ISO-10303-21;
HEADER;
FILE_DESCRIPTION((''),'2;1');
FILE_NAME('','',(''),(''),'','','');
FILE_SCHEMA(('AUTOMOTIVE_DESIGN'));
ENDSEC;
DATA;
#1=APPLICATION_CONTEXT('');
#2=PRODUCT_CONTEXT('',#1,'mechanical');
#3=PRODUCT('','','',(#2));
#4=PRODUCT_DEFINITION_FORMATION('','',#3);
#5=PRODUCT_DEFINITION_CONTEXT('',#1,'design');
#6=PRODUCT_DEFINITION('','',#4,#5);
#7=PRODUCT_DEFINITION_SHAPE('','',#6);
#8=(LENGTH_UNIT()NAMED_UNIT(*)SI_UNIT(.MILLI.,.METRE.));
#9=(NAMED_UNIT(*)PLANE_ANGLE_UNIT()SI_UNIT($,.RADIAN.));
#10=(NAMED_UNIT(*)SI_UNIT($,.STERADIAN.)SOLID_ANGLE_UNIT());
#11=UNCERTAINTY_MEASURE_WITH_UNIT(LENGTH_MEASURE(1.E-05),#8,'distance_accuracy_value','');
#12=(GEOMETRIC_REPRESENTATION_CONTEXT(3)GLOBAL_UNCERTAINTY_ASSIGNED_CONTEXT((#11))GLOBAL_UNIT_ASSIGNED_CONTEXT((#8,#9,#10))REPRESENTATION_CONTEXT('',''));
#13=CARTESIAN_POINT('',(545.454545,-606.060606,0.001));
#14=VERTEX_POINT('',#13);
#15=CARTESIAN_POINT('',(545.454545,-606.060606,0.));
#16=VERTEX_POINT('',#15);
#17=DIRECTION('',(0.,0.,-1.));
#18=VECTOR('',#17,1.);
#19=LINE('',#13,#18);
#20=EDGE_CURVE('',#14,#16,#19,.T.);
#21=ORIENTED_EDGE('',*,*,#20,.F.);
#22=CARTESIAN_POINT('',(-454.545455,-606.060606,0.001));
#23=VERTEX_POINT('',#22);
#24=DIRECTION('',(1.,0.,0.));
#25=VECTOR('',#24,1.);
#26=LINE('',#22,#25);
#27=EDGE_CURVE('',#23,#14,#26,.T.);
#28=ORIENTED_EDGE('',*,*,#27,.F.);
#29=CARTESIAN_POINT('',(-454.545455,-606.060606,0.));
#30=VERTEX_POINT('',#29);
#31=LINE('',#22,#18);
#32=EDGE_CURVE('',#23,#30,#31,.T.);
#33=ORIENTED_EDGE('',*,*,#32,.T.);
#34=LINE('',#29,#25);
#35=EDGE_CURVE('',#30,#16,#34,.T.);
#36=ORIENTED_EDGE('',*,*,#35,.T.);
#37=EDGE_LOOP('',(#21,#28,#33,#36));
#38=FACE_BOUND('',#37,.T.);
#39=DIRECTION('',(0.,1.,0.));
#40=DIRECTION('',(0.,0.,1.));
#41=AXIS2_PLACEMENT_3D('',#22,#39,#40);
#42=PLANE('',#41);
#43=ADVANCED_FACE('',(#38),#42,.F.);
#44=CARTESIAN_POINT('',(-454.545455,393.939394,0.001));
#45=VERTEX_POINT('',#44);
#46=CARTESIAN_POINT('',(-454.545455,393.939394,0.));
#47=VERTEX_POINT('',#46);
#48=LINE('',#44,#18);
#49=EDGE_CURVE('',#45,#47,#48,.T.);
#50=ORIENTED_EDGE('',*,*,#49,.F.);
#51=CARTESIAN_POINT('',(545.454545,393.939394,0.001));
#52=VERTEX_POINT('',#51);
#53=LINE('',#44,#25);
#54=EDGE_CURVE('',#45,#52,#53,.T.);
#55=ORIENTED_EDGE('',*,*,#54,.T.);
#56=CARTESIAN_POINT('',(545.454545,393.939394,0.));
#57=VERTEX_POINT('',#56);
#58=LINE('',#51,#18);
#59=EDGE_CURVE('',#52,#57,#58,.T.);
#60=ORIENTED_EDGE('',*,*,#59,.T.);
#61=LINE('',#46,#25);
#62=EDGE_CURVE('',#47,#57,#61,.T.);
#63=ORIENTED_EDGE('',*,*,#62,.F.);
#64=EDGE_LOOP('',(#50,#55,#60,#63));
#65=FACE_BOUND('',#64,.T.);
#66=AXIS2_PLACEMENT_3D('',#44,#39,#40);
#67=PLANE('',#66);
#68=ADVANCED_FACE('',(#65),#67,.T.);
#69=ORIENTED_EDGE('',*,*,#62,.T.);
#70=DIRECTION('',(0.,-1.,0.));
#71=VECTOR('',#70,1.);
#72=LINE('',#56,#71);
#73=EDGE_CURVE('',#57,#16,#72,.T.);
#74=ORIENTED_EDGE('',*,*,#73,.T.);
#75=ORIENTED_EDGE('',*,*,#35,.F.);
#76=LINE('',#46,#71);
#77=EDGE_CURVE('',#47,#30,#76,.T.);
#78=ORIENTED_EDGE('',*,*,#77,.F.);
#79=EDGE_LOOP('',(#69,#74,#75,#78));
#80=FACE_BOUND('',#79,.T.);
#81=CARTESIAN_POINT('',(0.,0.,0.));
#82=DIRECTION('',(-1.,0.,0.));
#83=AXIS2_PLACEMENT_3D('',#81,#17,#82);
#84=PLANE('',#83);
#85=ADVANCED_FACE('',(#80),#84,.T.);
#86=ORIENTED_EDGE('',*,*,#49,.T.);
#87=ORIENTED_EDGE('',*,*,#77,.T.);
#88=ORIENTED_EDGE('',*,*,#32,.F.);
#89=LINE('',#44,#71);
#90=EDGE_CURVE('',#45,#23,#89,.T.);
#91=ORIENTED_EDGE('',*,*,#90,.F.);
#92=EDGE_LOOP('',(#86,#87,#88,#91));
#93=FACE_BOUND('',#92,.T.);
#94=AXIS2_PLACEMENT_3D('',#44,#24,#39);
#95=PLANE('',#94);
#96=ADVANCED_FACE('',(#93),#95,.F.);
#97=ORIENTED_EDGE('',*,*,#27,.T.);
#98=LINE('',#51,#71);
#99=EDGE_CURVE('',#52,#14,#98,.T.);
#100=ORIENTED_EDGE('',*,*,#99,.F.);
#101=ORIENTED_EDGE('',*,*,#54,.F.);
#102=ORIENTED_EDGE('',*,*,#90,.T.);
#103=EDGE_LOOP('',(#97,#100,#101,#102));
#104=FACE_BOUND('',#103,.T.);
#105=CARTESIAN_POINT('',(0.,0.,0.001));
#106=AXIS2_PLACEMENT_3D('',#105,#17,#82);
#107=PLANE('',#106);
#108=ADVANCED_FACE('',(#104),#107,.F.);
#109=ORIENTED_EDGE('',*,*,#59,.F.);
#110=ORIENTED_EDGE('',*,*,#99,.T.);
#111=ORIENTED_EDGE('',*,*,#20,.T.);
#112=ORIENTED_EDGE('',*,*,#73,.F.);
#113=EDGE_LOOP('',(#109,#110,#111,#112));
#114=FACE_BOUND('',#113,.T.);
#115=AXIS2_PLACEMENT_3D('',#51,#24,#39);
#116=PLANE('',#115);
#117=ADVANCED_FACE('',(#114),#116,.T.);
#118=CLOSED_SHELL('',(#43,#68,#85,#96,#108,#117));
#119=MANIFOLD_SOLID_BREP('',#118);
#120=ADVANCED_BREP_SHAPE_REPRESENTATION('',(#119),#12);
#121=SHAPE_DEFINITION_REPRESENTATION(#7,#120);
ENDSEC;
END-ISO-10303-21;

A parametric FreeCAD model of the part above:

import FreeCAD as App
import Part
import Sketcher

V = App.Vector
Q = App.Units.Quantity


def add_polygon(sketch, points):
    """Adds a closed chain of lines whose ends are joined by coincident constraints."""
    first, n = sketch.GeometryCount, len(points)
    for a, b in zip(points, points[1:] + points[:1]):
        sketch.addGeometry(Part.LineSegment(App.Vector(*a, 0), App.Vector(*b, 0)), False)
    for i in range(n):
        sketch.addConstraint(Sketcher.Constraint("Coincident", first + i, 2, first + (i + 1) % n, 1))

doc = App.newDocument("Part")
body = doc.addObject("PartDesign::Body", "Body")

# Sketch on XY plane
sketch1 = doc.addObject("Sketcher::SketchObject", "Sketch")
body.addObject(sketch1)
sketch1.AttachmentSupport = (doc.XY_Plane, [""])
sketch1.MapMode = "FlatFace"
add_polygon(sketch1, [(-455, 394), (-455, -606), (545, -606), (545, 394)])  # lines 0-3
sketch1.addConstraint(Sketcher.Constraint("Vertical", 0))
sketch1.addConstraint(Sketcher.Constraint("Horizontal", 1))
sketch1.addConstraint(Sketcher.Constraint("Vertical", 2))
sketch1.addConstraint(Sketcher.Constraint("Horizontal", 3))
sketch1.addConstraint(Sketcher.Constraint("Equal", 3, 0))
sketch1.addConstraint(Sketcher.Constraint("DistanceX", 1, 1, 1, 2, Q("1000 mm")))
sketch1.addConstraint(Sketcher.Constraint("DistanceX", 0, 2, -1, 1, Q("454.545455 mm")))
sketch1.addConstraint(Sketcher.Constraint("DistanceY", 0, 2, -1, 1, Q("606.060606 mm")))
pad1 = doc.addObject("PartDesign::Pad", "Pad")
body.addObject(pad1)
pad1.Profile = sketch1
pad1.Length = 0.001

doc.recompute()
